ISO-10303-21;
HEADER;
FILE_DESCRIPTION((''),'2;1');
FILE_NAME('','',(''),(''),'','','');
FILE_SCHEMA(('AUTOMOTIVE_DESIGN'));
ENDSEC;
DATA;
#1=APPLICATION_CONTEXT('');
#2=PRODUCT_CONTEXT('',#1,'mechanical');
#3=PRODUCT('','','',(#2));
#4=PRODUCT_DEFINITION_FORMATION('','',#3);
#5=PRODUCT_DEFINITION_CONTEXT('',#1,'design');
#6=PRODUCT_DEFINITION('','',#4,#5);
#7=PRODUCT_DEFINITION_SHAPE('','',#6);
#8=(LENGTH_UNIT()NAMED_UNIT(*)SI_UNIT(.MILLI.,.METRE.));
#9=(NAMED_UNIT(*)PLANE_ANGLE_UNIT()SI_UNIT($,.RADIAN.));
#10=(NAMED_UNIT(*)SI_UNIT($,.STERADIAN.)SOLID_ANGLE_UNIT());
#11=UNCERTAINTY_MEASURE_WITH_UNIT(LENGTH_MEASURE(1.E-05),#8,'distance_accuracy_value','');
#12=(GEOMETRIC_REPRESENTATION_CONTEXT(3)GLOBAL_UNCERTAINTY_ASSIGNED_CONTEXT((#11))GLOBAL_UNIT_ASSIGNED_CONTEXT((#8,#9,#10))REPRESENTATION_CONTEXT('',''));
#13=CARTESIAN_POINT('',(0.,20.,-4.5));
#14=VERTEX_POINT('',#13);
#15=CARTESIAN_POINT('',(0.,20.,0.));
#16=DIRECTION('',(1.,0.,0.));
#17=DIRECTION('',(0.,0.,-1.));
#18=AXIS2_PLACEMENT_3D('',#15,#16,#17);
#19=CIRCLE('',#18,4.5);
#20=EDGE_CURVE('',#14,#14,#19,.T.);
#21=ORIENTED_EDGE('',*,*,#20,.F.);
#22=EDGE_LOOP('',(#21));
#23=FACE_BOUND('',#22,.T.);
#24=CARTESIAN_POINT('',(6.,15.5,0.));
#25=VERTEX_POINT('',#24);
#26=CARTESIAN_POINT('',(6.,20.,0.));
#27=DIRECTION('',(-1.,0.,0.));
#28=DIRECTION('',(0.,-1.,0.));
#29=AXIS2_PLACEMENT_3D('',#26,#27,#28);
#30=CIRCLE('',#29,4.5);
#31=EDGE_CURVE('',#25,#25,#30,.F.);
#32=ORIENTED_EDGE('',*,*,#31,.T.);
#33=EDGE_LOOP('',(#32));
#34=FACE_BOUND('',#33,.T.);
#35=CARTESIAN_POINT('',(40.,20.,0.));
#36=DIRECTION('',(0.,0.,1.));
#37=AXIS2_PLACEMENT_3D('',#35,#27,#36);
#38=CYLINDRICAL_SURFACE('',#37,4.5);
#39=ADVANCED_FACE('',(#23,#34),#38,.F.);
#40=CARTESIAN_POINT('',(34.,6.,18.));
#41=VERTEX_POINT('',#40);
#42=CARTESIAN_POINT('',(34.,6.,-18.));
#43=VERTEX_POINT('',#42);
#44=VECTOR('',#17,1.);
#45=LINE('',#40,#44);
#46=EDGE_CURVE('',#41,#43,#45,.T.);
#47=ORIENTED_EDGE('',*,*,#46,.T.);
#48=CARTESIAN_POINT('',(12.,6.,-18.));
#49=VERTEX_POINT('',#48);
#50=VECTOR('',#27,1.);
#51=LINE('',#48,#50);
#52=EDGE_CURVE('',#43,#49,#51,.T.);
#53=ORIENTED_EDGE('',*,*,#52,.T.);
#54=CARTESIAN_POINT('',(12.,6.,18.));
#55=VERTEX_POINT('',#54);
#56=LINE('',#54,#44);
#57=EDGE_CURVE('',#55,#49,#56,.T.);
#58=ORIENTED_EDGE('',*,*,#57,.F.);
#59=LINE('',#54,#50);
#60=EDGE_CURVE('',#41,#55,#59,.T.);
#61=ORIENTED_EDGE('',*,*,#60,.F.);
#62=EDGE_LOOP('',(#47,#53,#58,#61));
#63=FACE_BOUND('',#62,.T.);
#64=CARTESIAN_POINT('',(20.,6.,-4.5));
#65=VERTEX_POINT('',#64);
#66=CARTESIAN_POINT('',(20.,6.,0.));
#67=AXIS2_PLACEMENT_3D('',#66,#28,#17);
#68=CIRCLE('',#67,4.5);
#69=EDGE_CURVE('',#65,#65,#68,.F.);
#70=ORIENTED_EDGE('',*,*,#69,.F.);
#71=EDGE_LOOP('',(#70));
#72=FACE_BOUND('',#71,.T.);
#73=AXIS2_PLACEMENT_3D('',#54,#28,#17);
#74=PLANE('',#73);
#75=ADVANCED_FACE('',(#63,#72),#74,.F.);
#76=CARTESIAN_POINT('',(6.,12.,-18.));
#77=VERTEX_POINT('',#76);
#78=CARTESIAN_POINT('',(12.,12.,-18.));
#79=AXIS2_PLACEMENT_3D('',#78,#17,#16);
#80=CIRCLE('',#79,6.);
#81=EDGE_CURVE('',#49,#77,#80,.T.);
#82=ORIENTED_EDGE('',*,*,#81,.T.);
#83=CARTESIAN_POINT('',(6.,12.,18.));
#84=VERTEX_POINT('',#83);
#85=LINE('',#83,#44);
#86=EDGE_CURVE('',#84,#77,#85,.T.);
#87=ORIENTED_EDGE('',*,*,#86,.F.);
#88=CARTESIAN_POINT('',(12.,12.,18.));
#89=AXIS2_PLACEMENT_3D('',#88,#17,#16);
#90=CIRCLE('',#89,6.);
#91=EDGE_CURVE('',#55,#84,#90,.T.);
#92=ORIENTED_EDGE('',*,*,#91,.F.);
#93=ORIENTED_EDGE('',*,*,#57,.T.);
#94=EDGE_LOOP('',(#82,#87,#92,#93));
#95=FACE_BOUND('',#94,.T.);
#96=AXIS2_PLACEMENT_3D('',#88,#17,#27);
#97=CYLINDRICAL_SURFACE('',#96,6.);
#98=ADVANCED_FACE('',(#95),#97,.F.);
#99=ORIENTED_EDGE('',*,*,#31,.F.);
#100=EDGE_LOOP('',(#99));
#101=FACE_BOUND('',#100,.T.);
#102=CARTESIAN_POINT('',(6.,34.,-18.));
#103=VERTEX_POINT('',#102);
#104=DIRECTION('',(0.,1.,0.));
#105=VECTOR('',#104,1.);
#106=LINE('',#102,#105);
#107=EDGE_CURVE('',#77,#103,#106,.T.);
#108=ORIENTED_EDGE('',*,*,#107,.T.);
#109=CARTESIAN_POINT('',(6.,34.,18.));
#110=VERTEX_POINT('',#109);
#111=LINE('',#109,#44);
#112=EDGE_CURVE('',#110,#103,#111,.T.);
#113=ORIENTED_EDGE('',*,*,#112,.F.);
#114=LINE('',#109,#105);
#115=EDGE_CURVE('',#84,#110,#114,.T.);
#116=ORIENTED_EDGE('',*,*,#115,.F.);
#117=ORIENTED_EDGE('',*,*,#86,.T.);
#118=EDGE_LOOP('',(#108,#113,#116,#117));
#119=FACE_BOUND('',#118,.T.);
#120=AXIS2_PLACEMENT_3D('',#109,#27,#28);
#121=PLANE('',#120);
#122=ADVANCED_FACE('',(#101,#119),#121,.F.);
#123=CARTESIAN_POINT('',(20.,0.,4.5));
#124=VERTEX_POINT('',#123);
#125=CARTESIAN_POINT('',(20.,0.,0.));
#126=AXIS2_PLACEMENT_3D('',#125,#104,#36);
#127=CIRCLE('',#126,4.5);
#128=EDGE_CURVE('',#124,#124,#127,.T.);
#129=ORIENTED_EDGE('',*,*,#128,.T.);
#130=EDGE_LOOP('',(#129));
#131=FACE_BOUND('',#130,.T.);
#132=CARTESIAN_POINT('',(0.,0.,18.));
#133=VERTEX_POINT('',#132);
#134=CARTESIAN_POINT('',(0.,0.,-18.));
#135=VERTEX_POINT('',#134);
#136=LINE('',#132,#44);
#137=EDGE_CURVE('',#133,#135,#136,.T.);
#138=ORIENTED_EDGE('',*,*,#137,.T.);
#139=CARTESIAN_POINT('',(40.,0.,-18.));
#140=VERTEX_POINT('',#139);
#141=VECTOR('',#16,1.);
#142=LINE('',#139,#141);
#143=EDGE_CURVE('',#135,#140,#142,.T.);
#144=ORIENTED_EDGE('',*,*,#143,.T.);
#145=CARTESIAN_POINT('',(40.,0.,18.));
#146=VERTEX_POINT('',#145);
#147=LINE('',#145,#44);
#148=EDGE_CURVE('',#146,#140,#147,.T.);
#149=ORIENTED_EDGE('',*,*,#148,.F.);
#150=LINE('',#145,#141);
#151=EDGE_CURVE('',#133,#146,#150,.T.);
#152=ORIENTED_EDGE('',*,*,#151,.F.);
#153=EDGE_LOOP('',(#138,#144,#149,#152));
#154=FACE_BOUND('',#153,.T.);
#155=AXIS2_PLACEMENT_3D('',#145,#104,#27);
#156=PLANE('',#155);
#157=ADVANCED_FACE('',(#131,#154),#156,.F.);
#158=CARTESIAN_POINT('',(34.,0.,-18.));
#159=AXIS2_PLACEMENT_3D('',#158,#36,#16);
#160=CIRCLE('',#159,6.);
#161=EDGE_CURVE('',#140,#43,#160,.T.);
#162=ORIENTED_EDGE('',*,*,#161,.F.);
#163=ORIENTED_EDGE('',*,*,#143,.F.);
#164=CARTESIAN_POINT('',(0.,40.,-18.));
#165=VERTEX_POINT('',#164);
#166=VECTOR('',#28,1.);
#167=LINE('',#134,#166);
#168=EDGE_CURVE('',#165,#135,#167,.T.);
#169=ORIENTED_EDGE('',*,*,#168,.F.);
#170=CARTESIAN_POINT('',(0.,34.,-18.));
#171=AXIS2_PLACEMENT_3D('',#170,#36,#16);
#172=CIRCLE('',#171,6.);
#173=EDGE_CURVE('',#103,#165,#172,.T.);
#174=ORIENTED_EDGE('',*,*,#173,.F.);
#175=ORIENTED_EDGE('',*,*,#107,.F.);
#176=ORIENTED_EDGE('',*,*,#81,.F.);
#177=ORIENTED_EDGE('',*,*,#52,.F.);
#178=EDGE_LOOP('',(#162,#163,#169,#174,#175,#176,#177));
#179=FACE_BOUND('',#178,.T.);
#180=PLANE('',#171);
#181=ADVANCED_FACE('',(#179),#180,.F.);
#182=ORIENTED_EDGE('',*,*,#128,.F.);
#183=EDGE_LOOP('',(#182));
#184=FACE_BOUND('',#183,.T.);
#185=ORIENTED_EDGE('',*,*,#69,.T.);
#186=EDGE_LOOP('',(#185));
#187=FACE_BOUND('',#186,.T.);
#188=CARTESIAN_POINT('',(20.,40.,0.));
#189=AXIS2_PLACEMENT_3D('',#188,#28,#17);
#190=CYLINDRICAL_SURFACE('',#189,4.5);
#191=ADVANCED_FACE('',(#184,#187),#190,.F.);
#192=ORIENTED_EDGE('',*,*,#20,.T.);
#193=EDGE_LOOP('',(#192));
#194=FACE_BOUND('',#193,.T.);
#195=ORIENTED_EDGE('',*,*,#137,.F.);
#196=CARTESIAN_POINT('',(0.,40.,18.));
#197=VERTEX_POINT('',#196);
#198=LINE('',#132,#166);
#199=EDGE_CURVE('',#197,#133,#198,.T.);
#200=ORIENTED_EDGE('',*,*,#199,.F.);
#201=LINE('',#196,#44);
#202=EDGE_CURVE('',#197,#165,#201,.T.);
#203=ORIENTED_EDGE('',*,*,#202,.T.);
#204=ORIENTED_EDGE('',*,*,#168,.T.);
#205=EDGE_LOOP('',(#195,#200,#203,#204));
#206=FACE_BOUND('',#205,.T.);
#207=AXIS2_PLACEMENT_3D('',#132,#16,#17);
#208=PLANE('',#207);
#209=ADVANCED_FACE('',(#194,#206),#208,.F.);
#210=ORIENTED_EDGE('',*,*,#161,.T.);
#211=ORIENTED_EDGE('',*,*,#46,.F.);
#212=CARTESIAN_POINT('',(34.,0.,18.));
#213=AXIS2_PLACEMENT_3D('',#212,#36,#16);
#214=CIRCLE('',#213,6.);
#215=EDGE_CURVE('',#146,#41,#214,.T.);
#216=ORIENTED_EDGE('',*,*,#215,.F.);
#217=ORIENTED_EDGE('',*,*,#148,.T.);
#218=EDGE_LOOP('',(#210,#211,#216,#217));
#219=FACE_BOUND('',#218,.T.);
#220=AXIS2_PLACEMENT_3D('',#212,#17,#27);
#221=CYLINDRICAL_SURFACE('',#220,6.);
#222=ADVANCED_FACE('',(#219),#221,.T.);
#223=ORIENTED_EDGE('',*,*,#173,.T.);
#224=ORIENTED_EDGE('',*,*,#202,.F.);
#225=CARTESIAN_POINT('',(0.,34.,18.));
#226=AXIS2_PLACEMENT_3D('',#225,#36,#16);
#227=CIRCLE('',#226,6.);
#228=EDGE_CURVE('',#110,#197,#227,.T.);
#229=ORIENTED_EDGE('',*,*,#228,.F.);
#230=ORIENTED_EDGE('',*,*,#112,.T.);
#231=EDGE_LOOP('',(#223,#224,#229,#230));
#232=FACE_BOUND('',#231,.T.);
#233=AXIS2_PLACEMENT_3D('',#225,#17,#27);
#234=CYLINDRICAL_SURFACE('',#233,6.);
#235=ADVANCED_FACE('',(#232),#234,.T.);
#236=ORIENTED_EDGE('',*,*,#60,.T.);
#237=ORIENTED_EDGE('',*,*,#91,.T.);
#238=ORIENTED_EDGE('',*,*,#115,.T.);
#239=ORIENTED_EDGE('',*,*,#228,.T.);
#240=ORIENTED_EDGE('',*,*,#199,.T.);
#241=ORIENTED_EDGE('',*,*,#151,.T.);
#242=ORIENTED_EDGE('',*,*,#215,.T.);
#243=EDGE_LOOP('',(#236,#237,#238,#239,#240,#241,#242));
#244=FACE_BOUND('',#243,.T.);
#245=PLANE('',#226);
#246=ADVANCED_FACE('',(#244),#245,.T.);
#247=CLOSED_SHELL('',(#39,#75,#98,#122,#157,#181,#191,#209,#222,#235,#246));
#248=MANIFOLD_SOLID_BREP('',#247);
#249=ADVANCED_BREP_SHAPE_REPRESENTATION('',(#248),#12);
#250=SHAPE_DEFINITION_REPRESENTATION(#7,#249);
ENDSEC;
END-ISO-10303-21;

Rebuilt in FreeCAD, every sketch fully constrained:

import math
import FreeCAD as App
import Part
import Sketcher
from FreeCAD import Vector

doc = App.newDocument("Part")
body = doc.addObject("PartDesign::Body", "Body")

# Sketch on XY plane
sketch1 = body.newObject("Sketcher::SketchObject", "Sketch")
sketch1.AttachmentSupport = (doc.getObject("XY_Plane"), [""])
sketch1.MapMode = "FlatFace"
sketch1.addGeometry([
    Part.LineSegment(Vector(0, 40, 0), Vector(0, 0, 0)),  # 0
    Part.LineSegment(Vector(0, 0, 0), Vector(40, 0, 0)),  # 1
    Part.ArcOfCircle(Part.Circle(Vector(34, 0, 0), Vector(0, 0, 1), 6), math.radians(0), math.radians(90)),  # 2
    Part.LineSegment(Vector(34, 6, 0), Vector(12, 6, 0)),  # 3
    Part.ArcOfCircle(Part.Circle(Vector(12, 12, 0), Vector(0, 0, 1), 6), math.radians(180), math.radians(270)),  # 4
    Part.LineSegment(Vector(6, 12, 0), Vector(6, 34, 0)),  # 5
    Part.ArcOfCircle(Part.Circle(Vector(0, 34, 0), Vector(0, 0, 1), 6), math.radians(0), math.radians(90)),  # 6
], False)
sketch1.addConstraint([
    Sketcher.Constraint("Coincident", 0, 2, 1, 1),
    Sketcher.Constraint("Coincident", 1, 2, 2, 1),
    Sketcher.Constraint("Tangent", 2, 2, 3, 1),
    Sketcher.Constraint("Tangent", 3, 2, 4, 2),
    Sketcher.Constraint("Tangent", 4, 1, 5, 1),
    Sketcher.Constraint("Tangent", 5, 2, 6, 1),
    Sketcher.Constraint("Coincident", 6, 2, 0, 1),
    Sketcher.Constraint("Vertical", 0),
    Sketcher.Constraint("Horizontal", 1),
    Sketcher.Constraint("Horizontal", 3),
    Sketcher.Constraint("Vertical", 5),
    Sketcher.Constraint("Coincident", 0, 2, -1, 1),
    Sketcher.Constraint("Equal", 2, 4),
    Sketcher.Constraint("Equal", 4, 6),
    Sketcher.Constraint("PointOnObject", 2, 3, -1),
    Sketcher.Constraint("PointOnObject", 6, 3, -2),
    Sketcher.Constraint("Equal", 1, 0),
    Sketcher.Constraint("Radius", 2, 6.0),
    Sketcher.Constraint("DistanceX", 1, 1, 1, 2, 40.0),
])
pad1 = body.newObject("PartDesign::Pad", "Pad")
pad1.Profile = sketch1
pad1.Length = 36
pad1.Midplane = True

# Sketch on XZ plane
sketch2 = body.newObject("Sketcher::SketchObject", "Sketch001")
sketch2.AttachmentSupport = (doc.getObject("XZ_Plane"), [""])
sketch2.MapMode = "FlatFace"
sketch2.addGeometry(Part.Circle(Vector(20, 0, 0), Vector(0, 0, 1), 4.5), False)
sketch2.addConstraint([
    Sketcher.Constraint("PointOnObject", 0, 3, -1),
    Sketcher.Constraint("Diameter", 0, 9.0),
    Sketcher.Constraint("DistanceX", -1, 1, 0, 3, 20.0),
])
pocket1 = body.newObject("PartDesign::Pocket", "Pocket")
pocket1.Profile = sketch2
pocket1.Type = "ThroughAll"

# Sketch on YZ plane
sketch3 = body.newObject("Sketcher::SketchObject", "Sketch002")
sketch3.AttachmentSupport = (doc.getObject("YZ_Plane"), [""])
sketch3.MapMode = "FlatFace"
sketch3.addGeometry(Part.Circle(Vector(20, 0, 0), Vector(0, 0, 1), 4.5), False)
sketch3.addConstraint([
    Sketcher.Constraint("PointOnObject", 0, 3, -1),
    Sketcher.Constraint("Diameter", 0, 9.0),
    Sketcher.Constraint("DistanceX", -1, 1, 0, 3, 20.0),
])
pocket2 = body.newObject("PartDesign::Pocket", "Pocket001")
pocket2.Profile = sketch3
pocket2.Type = "ThroughAll"
pocket2.Reversed = True

doc.recompute()
